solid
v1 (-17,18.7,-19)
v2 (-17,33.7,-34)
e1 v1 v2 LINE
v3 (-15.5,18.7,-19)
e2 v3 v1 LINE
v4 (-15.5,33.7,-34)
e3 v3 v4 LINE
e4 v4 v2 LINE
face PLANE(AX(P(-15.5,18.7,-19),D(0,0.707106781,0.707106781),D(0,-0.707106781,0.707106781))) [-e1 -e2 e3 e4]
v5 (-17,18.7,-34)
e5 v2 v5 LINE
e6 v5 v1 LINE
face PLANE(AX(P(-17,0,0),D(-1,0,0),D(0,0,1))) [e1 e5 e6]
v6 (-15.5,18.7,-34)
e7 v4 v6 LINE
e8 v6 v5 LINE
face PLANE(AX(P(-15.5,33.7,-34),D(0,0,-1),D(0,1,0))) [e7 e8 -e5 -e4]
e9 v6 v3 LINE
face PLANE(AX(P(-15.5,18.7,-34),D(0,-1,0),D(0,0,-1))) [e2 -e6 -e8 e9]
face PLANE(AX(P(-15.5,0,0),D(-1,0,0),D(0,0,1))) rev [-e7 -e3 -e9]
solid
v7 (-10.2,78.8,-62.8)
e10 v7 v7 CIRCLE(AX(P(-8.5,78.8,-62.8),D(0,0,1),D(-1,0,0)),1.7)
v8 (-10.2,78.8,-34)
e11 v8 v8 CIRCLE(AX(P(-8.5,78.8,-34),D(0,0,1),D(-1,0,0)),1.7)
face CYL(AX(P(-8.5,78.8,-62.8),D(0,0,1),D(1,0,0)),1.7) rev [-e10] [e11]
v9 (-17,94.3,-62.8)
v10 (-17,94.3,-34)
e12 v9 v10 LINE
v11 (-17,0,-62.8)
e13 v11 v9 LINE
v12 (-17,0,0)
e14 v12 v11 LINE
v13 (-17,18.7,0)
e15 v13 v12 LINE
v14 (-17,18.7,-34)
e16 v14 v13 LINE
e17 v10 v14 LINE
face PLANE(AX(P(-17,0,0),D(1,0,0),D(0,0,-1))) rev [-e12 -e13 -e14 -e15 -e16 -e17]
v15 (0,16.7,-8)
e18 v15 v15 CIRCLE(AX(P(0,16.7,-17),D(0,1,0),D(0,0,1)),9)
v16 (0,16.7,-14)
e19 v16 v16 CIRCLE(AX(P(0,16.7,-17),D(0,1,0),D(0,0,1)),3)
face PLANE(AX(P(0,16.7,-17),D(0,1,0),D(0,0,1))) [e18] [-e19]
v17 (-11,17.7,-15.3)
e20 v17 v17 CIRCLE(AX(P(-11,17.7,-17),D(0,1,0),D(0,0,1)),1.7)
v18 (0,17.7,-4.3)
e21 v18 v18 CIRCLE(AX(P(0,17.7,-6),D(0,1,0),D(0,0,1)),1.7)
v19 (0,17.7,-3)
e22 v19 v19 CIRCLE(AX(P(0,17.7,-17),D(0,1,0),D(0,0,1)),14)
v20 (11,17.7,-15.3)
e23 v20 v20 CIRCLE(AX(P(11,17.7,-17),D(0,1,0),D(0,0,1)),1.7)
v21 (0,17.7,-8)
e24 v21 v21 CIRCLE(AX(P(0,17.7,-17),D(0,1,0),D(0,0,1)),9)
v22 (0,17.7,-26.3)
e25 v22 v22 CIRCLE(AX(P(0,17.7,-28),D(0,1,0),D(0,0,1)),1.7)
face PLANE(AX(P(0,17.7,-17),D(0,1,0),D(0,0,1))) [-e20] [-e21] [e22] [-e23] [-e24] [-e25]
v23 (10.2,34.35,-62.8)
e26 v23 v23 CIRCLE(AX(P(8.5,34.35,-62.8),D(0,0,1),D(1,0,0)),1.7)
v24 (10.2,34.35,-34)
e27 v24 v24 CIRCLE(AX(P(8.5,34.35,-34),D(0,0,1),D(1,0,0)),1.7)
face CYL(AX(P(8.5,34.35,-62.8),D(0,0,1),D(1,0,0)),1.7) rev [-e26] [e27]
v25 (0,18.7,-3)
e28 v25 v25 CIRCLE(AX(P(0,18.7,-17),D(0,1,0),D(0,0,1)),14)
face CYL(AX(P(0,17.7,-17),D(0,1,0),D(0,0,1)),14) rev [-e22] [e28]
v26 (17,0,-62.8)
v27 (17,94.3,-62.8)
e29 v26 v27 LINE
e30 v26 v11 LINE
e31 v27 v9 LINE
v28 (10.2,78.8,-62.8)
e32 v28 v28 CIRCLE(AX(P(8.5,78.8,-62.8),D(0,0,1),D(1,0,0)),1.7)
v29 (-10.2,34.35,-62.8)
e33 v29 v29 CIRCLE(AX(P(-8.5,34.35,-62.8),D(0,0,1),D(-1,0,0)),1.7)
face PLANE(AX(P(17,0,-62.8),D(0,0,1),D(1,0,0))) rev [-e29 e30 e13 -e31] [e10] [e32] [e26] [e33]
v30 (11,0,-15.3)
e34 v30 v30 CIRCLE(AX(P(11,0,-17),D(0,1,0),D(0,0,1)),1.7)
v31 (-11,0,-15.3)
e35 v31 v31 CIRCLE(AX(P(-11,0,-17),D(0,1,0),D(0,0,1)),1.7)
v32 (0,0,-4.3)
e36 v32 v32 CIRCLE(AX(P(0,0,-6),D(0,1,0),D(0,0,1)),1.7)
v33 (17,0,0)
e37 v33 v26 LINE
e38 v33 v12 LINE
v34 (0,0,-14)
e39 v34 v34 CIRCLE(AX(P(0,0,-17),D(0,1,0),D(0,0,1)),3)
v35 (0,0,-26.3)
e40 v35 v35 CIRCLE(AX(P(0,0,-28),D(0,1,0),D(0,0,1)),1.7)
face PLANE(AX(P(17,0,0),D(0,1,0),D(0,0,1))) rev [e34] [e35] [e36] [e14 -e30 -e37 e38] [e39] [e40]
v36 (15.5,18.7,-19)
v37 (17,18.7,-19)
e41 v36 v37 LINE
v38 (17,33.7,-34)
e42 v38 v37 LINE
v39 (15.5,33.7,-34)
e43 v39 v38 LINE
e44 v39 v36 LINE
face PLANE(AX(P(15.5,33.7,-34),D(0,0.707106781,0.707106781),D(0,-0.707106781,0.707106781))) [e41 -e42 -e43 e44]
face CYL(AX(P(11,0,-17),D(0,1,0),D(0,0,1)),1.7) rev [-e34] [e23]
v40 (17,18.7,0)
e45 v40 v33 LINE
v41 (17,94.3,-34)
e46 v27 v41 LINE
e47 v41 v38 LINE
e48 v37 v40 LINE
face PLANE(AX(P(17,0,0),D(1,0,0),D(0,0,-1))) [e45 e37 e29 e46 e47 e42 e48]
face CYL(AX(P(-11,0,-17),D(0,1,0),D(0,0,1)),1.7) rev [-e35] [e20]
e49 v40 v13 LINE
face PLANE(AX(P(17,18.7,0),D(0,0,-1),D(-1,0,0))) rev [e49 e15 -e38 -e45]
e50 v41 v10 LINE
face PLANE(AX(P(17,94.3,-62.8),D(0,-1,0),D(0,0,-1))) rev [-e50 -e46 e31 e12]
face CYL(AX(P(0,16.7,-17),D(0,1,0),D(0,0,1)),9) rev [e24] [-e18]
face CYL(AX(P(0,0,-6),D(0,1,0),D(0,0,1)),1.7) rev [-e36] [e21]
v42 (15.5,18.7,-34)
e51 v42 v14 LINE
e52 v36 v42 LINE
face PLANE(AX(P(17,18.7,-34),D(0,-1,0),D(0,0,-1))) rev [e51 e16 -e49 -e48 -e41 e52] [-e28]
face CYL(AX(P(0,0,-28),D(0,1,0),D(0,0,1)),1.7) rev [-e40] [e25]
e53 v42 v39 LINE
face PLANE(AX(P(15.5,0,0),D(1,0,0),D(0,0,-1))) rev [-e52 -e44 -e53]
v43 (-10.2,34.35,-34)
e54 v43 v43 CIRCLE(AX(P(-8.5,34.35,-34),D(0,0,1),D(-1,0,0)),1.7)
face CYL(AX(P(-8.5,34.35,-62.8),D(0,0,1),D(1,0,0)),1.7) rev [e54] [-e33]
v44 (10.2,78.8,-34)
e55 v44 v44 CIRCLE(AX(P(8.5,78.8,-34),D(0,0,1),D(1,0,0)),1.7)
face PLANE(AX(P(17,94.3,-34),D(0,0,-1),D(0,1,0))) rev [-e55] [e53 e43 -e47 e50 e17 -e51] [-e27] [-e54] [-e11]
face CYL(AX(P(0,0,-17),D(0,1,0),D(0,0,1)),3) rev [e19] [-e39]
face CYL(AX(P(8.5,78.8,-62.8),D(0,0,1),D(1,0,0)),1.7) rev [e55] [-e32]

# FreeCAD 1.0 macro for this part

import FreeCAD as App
import Part
import Sketcher

doc = App.newDocument("Part")
body = doc.addObject("PartDesign::Body", "Body")

# Sketch on YZ plane
sketch1 = body.newObject("Sketcher::SketchObject", "Sketch")
sketch1.AttachmentSupport = (doc.getObject("YZ_Plane"), [""])
sketch1.MapMode = "FlatFace"
sketch1.addGeometry([
    Part.LineSegment(App.Vector(0, 0, 0), App.Vector(0, -63, 0)),  # 0
    Part.LineSegment(App.Vector(0, -63, 0), App.Vector(94, -63, 0)),  # 1
    Part.LineSegment(App.Vector(94, -63, 0), App.Vector(94, -34, 0)),  # 2
    Part.LineSegment(App.Vector(94, -34, 0), App.Vector(19, -34, 0)),  # 3
    Part.LineSegment(App.Vector(19, -34, 0), App.Vector(19, 0, 0)),  # 4
    Part.LineSegment(App.Vector(19, 0, 0), App.Vector(0, 0, 0)),  # 5
], False)
sketch1.addConstraint([
    Sketcher.Constraint("Coincident", 0, 2, 1, 1),
    Sketcher.Constraint("Coincident", 1, 2, 2, 1),
    Sketcher.Constraint("Coincident", 2, 2, 3, 1),
    Sketcher.Constraint("Coincident", 3, 2, 4, 1),
    Sketcher.Constraint("Coincident", 4, 2, 5, 1),
    Sketcher.Constraint("Coincident", 5, 2, 0, 1),
    Sketcher.Constraint("Vertical", 0),
    Sketcher.Constraint("Horizontal", 1),
    Sketcher.Constraint("Vertical", 2),
    Sketcher.Constraint("Horizontal", 3),
    Sketcher.Constraint("Vertical", 4),
    Sketcher.Constraint("Horizontal", 5),
    Sketcher.Constraint("Coincident", 5, 2, -1, 1),
    Sketcher.Constraint("DistanceY", 4, 1, 4, 2, 34.0),
    Sketcher.Constraint("DistanceX", 1, 1, 1, 2, 94.3),
    Sketcher.Constraint("DistanceX", 3, 2, 3, 1, 75.6),
    Sketcher.Constraint("DistanceY", 0, 2, 0, 1, 62.8),
])
pad1 = body.newObject("PartDesign::Pad", "Pad")
pad1.Profile = sketch1
pad1.Length = 34
pad1.Midplane = True

# Sketch on XY plane
sketch2 = body.newObject("Sketcher::SketchObject", "Sketch001")
sketch2.AttachmentSupport = (doc.getObject("XY_Plane"), [""])
sketch2.MapMode = "FlatFace"
sketch2.AttachmentOffset = App.Placement(App.Vector(0, 0, -34), App.Rotation())
sketch2.addGeometry([
    Part.Circle(App.Vector(8.5, 34.4, 0), App.Vector(0, 0, 1), 1.7),
    Part.Circle(App.Vector(8.5, 78.8, 0), App.Vector(0, 0, 1), 1.7),
    Part.Circle(App.Vector(-8.5, 34.4, 0), App.Vector(0, 0, 1), 1.7),
    Part.Circle(App.Vector(-8.5, 78.8, 0), App.Vector(0, 0, 1), 1.7),
], False)
sketch2.addConstraint([
    Sketcher.Constraint("Equal", 0, 1),
    Sketcher.Constraint("Equal", 1, 2),
    Sketcher.Constraint("Equal", 2, 3),
    Sketcher.Constraint("Symmetric", 0, 3, 2, 3, -2),
    Sketcher.Constraint("Symmetric", 1, 3, 3, 3, -2),
    Sketcher.Constraint("Vertical", 0, 3, 1, 3),
    Sketcher.Constraint("Diameter", 0, 3.4),
    Sketcher.Constraint("DistanceX", 2, 3, 0, 3, 17.0),
    Sketcher.Constraint("DistanceY", -1, 1, 1, 3, 78.8),
    Sketcher.Constraint("DistanceY", -1, 1, 0, 3, 34.35),
])
pocket1 = body.newObject("PartDesign::Pocket", "Pocket")
pocket1.Profile = sketch2
pocket1.Type = "ThroughAll"

# Sketch on XZ plane
sketch3 = body.newObject("Sketcher::SketchObject", "Sketch002")
sketch3.AttachmentSupport = (doc.getObject("XZ_Plane"), [""])
sketch3.MapMode = "FlatFace"
sketch3.AttachmentOffset = App.Placement(App.Vector(0, 0, -18.7), App.Rotation())
sketch3.addGeometry(Part.Circle(App.Vector(0, -17, 0), App.Vector(0, 0, 1), 14), False)
sketch3.addConstraint([
    Sketcher.Constraint("PointOnObject", 0, 3, -2),
    Sketcher.Constraint("Diameter", 0, 28.0),
    Sketcher.Constraint("DistanceY", 0, 3, -1, 1, 17.0),
])
pocket2 = body.newObject("PartDesign::Pocket", "Pocket001")
pocket2.Profile = sketch3
pocket2.Length = 1
pocket2.Reversed = True

# Sketch on XZ plane
sketch4 = body.newObject("Sketcher::SketchObject", "Sketch003")
sketch4.AttachmentSupport = (doc.getObject("XZ_Plane"), [""])
sketch4.MapMode = "FlatFace"
sketch4.AttachmentOffset = App.Placement(App.Vector(0, 0, -18.7), App.Rotation())
sketch4.addGeometry(Part.Circle(App.Vector(0, -17, 0), App.Vector(0, 0, 1), 9), False)
sketch4.addConstraint([
    Sketcher.Constraint("PointOnObject", 0, 3, -2),
    Sketcher.Constraint("Diameter", 0, 18.0),
    Sketcher.Constraint("DistanceY", 0, 3, -1, 1, 17.0),
])
pocket3 = body.newObject("PartDesign::Pocket", "Pocket002")
pocket3.Profile = sketch4
pocket3.Length = 2
pocket3.Reversed = True

# Sketch on XZ plane
sketch5 = body.newObject("Sketcher::SketchObject", "Sketch004")
sketch5.AttachmentSupport = (doc.getObject("XZ_Plane"), [""])
sketch5.MapMode = "FlatFace"
sketch5.AttachmentOffset = App.Placement(App.Vector(0, 0, -17.7), App.Rotation())
sketch5.addGeometry([
    Part.Circle(App.Vector(0, -6, 0), App.Vector(0, 0, 1), 1.7),  # 0
    Part.Circle(App.Vector(0, -28, 0), App.Vector(0, 0, 1), 1.7),  # 1
    Part.Circle(App.Vector(11, -17, 0), App.Vector(0, 0, 1), 1.7),  # 2
    Part.Circle(App.Vector(-11, -17, 0), App.Vector(0, 0, 1), 1.7),  # 3
    Part.Circle(App.Vector(0, -17, 0), App.Vector(0, 0, 1), 3),  # 4
], False)
sketch5.addConstraint([
    Sketcher.Constraint("Equal", 0, 1),
    Sketcher.Constraint("Equal", 1, 2),
    Sketcher.Constraint("Equal", 2, 3),
    Sketcher.Constraint("Symmetric", 2, 3, 3, 3, -2),
    Sketcher.Constraint("PointOnObject", 0, 3, -2),
    Sketcher.Constraint("PointOnObject", 1, 3, -2),
    Sketcher.Constraint("PointOnObject", 4, 3, -2),
    Sketcher.Constraint("Horizontal", 3, 3, 4, 3),
    Sketcher.Constraint("Diameter", 4, 6.0),
    Sketcher.Constraint("Diameter", 0, 3.4),
    Sketcher.Constraint("DistanceY", 0, 3, -1, 1, 6.0),
    Sketcher.Constraint("DistanceY", 1, 3, -1, 1, 28.0),
    Sketcher.Constraint("DistanceX", -1, 1, 2, 3, 11.0),
    Sketcher.Constraint("DistanceY", 2, 3, -1, 1, 17.0),
])
pocket4 = body.newObject("PartDesign::Pocket", "Pocket003")
pocket4.Profile = sketch5
pocket4.Type = "ThroughAll"
pocket4.Reversed = True

# Sketch on YZ plane
sketch6 = body.newObject("Sketcher::SketchObject", "Sketch005")
sketch6.AttachmentSupport = (doc.getObject("YZ_Plane"), [""])
sketch6.MapMode = "FlatFace"
sketch6.AttachmentOffset = App.Placement(App.Vector(0, 0, 17), App.Rotation())
sketch6.addGeometry([
    Part.LineSegment(App.Vector(19, -34, 0), App.Vector(34, -34, 0)),
    Part.LineSegment(App.Vector(34, -34, 0), App.Vector(19, -19, 0)),
    Part.LineSegment(App.Vector(19, -19, 0), App.Vector(19, -34, 0)),
], False)
sketch6.addConstraint([
    Sketcher.Constraint("Coincident", 0, 2, 1, 1),
    Sketcher.Constraint("Coincident", 1, 2, 2, 1),
    Sketcher.Constraint("Coincident", 2, 2, 0, 1),
    Sketcher.Constraint("Horizontal", 0),
    Sketcher.Constraint("Vertical", 2),
    Sketcher.Constraint("Equal", 0, 2),
    Sketcher.Constraint("DistanceX", 0, 1, 0, 2, 15.0),
    Sketcher.Constraint("DistanceY", 0, 2, -1, 1, 34.0),
    Sketcher.Constraint("DistanceX", -1, 1, 0, 2, 33.7),
])
pad2 = body.newObject("PartDesign::Pad", "Pad001")
pad2.Profile = sketch6
pad2.Length = 1.5
pad2.Reversed = True
body2 = doc.addObject("PartDesign::Body", "Body001")

# Sketch on YZ plane
sketch7 = body2.newObject("Sketcher::SketchObject", "Sketch006")
sketch7.AttachmentSupport = (doc.getObject("YZ_Plane001"), [""])
sketch7.MapMode = "FlatFace"
sketch7.AttachmentOffset = App.Placement(App.Vector(0, 0, -17), App.Rotation())
sketch7.addGeometry([
    Part.LineSegment(App.Vector(19, -34, 0), App.Vector(19, -19, 0)),
    Part.LineSegment(App.Vector(19, -19, 0), App.Vector(34, -34, 0)),
    Part.LineSegment(App.Vector(34, -34, 0), App.Vector(19, -34, 0)),
], False)
sketch7.addConstraint([
    Sketcher.Constraint("Coincident", 0, 2, 1, 1),
    Sketcher.Constraint("Coincident", 1, 2, 2, 1),
    Sketcher.Constraint("Coincident", 2, 2, 0, 1),
    Sketcher.Constraint("Vertical", 0),
    Sketcher.Constraint("Horizontal", 2),
    Sketcher.Constraint("Equal", 2, 0),
    Sketcher.Constraint("DistanceX", 2, 2, 2, 1, 15.0),
    Sketcher.Constraint("DistanceY", 0, 2, -1, 1, 19.0),
    Sketcher.Constraint("DistanceX", -1, 1, 0, 2, 18.7),
])
pad3 = body2.newObject("PartDesign::Pad", "Pad002")
pad3.Profile = sketch7
pad3.Length = 1.5

doc.recompute()
